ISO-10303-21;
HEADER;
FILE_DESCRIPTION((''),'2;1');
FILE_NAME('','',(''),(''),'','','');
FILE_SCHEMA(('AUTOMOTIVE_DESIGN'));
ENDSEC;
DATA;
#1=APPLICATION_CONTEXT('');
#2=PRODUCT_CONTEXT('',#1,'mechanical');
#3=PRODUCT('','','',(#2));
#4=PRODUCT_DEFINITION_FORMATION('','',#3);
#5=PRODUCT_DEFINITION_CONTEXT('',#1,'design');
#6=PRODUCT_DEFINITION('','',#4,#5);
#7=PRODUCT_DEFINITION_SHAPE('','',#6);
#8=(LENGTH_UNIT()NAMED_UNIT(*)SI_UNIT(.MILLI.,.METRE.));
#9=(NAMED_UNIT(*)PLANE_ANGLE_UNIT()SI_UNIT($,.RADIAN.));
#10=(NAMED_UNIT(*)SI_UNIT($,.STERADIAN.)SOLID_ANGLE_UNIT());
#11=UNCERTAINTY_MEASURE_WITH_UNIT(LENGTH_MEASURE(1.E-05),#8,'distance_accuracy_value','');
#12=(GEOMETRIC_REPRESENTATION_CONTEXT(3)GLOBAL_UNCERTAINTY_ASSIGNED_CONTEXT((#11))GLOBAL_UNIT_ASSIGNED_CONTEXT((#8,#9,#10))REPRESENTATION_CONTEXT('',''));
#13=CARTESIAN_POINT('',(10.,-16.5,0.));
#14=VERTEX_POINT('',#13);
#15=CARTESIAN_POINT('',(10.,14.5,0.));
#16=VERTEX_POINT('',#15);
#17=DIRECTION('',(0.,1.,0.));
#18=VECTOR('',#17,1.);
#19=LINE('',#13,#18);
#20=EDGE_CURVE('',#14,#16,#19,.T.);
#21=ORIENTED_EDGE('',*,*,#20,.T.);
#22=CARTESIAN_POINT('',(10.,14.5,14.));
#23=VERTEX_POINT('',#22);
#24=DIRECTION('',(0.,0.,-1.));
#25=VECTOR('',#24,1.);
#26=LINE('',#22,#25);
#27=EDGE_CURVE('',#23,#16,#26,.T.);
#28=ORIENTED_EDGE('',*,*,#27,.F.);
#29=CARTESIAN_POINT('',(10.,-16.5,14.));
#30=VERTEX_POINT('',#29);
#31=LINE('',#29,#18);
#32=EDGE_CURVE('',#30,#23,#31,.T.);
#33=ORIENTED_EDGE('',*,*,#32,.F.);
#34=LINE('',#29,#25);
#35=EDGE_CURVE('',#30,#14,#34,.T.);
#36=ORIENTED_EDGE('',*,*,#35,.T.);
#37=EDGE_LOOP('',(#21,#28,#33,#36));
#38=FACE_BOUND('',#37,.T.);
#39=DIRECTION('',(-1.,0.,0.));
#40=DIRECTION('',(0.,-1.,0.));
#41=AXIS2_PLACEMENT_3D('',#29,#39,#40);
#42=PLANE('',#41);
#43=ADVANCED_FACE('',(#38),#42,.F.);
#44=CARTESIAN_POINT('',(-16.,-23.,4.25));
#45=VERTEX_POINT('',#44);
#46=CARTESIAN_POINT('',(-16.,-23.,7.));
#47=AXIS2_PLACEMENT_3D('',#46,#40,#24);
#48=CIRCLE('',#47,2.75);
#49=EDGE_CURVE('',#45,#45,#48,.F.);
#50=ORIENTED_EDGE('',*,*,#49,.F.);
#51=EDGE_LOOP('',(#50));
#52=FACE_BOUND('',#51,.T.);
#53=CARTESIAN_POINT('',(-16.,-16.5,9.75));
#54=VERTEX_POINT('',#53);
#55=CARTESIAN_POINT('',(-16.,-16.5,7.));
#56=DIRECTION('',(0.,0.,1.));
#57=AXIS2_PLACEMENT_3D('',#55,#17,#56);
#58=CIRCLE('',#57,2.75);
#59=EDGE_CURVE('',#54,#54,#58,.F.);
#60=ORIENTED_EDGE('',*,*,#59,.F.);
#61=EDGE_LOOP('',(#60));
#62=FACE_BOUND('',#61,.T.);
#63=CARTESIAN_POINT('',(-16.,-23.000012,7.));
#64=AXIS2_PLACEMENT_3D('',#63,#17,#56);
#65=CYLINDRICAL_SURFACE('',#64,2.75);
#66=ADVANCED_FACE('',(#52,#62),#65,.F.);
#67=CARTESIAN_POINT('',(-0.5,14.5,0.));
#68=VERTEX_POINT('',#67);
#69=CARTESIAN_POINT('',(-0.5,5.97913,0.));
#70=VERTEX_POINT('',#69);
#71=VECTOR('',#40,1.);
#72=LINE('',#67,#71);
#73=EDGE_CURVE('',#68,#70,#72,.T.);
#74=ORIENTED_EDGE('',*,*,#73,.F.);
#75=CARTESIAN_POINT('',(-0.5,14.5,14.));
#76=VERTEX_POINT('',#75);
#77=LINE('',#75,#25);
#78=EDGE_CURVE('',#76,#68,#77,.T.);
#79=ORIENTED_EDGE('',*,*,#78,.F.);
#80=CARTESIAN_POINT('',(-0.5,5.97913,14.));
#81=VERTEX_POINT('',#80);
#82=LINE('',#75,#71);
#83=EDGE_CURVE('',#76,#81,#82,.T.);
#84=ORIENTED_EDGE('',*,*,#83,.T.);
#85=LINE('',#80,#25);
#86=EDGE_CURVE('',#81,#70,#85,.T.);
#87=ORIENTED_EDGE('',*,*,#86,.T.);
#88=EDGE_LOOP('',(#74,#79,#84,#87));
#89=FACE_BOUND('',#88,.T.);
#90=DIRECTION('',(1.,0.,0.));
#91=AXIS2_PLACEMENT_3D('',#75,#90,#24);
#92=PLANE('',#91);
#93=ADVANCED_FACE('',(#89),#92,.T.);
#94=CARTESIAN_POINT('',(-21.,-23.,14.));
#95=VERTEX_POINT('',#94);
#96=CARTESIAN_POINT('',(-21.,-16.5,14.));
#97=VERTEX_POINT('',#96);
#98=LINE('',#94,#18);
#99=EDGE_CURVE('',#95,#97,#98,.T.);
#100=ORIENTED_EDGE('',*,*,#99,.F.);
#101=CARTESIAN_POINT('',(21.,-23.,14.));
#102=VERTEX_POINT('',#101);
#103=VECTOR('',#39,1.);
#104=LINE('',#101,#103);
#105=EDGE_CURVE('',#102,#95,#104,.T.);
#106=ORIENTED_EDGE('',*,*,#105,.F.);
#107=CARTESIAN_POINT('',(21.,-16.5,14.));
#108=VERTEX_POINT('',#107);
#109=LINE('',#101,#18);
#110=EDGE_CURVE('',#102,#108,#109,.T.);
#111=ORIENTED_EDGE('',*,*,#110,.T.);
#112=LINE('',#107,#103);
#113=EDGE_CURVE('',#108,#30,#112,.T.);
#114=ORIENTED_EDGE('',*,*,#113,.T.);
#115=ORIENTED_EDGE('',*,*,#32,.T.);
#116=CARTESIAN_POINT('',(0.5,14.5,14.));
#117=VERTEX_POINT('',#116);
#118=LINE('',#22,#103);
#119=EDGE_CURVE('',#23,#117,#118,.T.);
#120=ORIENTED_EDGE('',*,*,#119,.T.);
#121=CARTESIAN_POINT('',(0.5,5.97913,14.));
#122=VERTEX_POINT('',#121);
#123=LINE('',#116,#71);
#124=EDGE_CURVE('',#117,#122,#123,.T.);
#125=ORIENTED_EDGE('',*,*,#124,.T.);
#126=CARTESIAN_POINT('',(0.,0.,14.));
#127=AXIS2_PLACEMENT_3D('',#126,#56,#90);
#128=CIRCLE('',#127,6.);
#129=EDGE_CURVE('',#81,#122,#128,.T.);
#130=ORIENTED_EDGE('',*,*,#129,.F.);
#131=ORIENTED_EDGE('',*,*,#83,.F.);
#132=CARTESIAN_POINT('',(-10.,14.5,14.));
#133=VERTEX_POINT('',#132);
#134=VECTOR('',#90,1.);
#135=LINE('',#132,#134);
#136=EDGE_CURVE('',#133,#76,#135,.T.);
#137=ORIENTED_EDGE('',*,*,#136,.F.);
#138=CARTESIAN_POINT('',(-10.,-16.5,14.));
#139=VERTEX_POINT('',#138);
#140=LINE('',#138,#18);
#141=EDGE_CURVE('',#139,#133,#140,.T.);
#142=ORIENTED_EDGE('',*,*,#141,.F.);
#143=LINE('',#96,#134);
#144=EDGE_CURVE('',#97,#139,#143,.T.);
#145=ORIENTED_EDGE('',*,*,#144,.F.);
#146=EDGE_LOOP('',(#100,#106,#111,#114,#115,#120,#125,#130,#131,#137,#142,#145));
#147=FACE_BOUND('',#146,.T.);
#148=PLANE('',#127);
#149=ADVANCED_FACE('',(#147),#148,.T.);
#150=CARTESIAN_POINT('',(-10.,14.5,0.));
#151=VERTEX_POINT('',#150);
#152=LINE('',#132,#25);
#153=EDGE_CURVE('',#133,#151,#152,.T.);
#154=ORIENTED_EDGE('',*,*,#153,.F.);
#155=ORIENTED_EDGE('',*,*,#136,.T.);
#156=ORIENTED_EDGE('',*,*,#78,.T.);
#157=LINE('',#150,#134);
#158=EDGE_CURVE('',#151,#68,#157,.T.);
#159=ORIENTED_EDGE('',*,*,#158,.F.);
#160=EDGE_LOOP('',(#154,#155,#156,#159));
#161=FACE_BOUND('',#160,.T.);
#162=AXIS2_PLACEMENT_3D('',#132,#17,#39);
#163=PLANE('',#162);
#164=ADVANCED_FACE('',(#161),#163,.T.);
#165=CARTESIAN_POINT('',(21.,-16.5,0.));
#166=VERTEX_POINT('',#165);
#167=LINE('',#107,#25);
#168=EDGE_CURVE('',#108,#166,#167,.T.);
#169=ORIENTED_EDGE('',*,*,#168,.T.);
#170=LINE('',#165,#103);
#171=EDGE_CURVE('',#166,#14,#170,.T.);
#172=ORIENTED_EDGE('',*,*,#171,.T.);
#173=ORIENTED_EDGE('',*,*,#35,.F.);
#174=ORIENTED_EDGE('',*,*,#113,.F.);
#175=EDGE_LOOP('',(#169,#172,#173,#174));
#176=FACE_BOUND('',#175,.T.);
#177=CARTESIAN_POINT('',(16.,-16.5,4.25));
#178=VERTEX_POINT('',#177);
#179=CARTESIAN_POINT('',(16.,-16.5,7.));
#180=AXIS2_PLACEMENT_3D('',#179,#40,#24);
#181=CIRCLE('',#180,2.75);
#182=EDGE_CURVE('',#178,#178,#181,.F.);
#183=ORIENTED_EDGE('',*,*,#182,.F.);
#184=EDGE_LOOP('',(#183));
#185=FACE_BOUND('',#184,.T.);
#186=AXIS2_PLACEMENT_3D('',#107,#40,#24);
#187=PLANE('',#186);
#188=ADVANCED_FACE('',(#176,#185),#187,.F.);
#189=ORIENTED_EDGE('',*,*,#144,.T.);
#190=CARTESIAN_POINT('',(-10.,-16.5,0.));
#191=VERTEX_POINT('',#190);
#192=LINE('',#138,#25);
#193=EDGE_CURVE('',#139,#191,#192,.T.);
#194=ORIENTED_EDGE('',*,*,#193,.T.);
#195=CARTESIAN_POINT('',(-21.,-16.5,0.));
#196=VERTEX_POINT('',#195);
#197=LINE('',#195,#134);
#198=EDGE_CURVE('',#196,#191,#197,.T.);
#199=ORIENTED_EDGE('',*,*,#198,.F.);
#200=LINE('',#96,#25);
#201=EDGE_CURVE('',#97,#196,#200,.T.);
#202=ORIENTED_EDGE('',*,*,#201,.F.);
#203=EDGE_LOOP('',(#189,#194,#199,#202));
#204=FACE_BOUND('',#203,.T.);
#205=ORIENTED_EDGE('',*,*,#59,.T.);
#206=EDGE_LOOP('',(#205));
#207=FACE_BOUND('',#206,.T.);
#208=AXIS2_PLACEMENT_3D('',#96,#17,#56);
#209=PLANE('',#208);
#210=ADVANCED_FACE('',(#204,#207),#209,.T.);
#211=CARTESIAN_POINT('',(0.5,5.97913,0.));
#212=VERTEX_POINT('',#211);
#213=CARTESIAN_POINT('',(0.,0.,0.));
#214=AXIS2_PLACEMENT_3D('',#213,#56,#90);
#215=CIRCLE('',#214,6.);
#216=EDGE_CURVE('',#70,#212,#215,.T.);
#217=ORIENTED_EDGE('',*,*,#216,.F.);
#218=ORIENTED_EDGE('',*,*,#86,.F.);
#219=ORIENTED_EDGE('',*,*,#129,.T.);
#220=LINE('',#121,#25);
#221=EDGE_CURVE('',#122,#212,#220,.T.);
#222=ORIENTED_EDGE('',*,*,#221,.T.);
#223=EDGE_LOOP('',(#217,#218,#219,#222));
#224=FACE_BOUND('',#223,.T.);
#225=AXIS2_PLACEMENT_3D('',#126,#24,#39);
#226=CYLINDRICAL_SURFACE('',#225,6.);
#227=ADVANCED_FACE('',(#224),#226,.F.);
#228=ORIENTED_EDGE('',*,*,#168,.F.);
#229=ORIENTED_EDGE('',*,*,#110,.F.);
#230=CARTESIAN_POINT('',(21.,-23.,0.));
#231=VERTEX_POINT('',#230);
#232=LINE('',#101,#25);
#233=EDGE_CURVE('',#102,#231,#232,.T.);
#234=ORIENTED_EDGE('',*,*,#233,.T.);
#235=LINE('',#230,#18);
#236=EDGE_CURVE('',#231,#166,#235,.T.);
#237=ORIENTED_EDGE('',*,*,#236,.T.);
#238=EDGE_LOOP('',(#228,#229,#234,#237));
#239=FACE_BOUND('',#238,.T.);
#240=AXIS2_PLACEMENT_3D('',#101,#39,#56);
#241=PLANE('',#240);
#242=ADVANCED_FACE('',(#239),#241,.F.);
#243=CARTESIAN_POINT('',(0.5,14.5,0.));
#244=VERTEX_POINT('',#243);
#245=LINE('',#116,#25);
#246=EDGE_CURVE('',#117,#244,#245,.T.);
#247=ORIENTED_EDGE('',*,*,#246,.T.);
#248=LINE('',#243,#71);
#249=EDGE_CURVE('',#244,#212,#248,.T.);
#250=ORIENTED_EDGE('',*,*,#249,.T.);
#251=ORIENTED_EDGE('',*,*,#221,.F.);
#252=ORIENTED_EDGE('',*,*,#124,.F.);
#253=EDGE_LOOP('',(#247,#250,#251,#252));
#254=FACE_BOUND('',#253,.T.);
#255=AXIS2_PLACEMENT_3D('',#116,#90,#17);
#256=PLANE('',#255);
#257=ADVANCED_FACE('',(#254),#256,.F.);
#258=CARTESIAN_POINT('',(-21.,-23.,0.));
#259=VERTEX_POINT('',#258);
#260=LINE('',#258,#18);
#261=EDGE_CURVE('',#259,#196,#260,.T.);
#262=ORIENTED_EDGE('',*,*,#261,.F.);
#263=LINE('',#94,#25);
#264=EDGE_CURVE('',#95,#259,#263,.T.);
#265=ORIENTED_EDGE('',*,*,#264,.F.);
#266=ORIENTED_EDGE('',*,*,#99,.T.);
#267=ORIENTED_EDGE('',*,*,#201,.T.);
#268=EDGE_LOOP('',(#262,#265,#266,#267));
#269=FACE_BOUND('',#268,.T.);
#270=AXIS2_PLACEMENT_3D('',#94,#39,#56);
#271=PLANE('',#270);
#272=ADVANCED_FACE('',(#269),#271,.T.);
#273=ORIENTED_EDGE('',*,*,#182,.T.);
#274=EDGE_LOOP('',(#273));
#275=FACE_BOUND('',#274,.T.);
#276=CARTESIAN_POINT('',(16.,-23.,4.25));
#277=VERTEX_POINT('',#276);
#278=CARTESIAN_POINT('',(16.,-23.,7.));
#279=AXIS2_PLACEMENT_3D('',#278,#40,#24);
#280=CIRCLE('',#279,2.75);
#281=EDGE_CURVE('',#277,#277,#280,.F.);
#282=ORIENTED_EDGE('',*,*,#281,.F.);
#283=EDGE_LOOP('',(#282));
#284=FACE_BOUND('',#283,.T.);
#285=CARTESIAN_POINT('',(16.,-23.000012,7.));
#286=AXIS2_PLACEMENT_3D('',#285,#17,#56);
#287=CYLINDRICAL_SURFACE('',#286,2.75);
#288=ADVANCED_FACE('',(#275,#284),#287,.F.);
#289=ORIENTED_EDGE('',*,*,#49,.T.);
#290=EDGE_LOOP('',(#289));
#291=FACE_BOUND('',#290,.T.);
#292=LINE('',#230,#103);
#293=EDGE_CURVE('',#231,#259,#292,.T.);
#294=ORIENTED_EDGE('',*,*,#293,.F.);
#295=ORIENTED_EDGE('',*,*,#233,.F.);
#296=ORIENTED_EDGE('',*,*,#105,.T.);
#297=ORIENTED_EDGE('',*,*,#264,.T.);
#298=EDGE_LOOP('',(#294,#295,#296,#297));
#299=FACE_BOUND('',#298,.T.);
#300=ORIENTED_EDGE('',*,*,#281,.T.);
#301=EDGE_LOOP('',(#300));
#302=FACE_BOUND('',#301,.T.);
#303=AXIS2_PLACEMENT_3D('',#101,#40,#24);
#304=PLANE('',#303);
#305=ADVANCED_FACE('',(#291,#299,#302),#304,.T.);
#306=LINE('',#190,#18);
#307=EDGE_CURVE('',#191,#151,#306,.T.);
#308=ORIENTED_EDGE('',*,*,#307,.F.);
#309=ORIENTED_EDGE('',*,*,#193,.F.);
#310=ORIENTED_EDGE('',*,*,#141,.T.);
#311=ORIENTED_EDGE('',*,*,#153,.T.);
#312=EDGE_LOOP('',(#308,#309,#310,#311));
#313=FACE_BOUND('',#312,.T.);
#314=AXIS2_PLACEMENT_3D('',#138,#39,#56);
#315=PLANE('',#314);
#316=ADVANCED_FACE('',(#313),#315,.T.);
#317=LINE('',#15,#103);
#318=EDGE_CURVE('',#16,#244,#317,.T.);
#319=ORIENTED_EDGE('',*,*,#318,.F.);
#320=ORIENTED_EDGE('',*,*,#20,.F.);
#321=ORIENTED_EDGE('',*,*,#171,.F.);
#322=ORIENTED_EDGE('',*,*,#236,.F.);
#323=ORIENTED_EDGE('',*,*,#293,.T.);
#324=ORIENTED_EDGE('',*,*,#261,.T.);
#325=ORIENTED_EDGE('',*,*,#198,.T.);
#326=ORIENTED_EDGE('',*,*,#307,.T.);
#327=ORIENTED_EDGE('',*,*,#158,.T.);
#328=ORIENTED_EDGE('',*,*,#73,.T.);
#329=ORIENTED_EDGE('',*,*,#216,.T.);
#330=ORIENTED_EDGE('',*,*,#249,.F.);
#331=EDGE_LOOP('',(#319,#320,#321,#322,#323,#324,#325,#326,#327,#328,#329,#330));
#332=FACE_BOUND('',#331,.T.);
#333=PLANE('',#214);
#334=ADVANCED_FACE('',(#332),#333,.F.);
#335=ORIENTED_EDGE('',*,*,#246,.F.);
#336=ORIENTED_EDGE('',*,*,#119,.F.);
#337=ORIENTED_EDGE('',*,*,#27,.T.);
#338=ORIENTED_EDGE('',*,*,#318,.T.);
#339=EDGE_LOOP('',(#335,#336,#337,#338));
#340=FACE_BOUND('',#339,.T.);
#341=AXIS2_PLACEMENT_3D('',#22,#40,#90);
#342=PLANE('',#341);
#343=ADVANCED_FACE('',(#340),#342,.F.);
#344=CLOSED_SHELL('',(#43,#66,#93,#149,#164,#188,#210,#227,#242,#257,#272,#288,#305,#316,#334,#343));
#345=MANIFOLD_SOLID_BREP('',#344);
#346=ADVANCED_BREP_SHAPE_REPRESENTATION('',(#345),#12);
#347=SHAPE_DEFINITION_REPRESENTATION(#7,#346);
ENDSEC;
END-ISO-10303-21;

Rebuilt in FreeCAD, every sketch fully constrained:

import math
import FreeCAD as App
import Part
import Sketcher

V = App.Vector

doc = App.newDocument("Part")
body = doc.addObject("PartDesign::Body", "Body")

sketch1 = doc.addObject("Sketcher::SketchObject", "Sketch")
body.addObject(sketch1)
sketch1.AttachmentSupport = (doc.XY_Plane, [""])
sketch1.MapMode = "FlatFace"
sketch1.addGeometry([
    Part.LineSegment(V(-21, -23, 0), V(21, -23, 0)),
    Part.LineSegment(V(21, -23, 0), V(21, -16.5, 0)),
    Part.LineSegment(V(21, -16.5, 0), V(10, -16.5, 0)),
    Part.LineSegment(V(10, -16.5, 0), V(10, 14.5, 0)),
    Part.LineSegment(V(10, 14.5, 0), V(0.5, 14.5, 0)),
    Part.LineSegment(V(0.5, 14.5, 0), V(0.5, 6, 0)),
    Part.ArcOfCircle(Part.Circle(V(0, 0, 0), V(0, 0, 1), 6), math.radians(95), math.radians(445)),
    Part.LineSegment(V(-0.5, 6, 0), V(-0.5, 14.5, 0)),
    Part.LineSegment(V(-0.5, 14.5, 0), V(-10, 14.5, 0)),
    Part.LineSegment(V(-10, 14.5, 0), V(-10, -16.5, 0)),
    Part.LineSegment(V(-10, -16.5, 0), V(-21, -16.5, 0)),
    Part.LineSegment(V(-21, -16.5, 0), V(-21, -23, 0)),
], False)
sketch1.addConstraint([
    Sketcher.Constraint("Coincident", 0, 2, 1, 1),
    Sketcher.Constraint("Coincident", 1, 2, 2, 1),
    Sketcher.Constraint("Coincident", 2, 2, 3, 1),
    Sketcher.Constraint("Coincident", 3, 2, 4, 1),
    Sketcher.Constraint("Coincident", 4, 2, 5, 1),
    Sketcher.Constraint("Coincident", 5, 2, 6, 2),
    Sketcher.Constraint("Coincident", 6, 1, 7, 1),
    Sketcher.Constraint("Coincident", 7, 2, 8, 1),
    Sketcher.Constraint("Coincident", 8, 2, 9, 1),
    Sketcher.Constraint("Coincident", 9, 2, 10, 1),
    Sketcher.Constraint("Coincident", 10, 2, 11, 1),
    Sketcher.Constraint("Coincident", 11, 2, 0, 1),
    Sketcher.Constraint("Horizontal", 0),
    Sketcher.Constraint("Vertical", 1),
    Sketcher.Constraint("Horizontal", 2),
    Sketcher.Constraint("Vertical", 3),
    Sketcher.Constraint("Horizontal", 4),
    Sketcher.Constraint("Vertical", 5),
    Sketcher.Constraint("Vertical", 7),
    Sketcher.Constraint("Horizontal", 8),
    Sketcher.Constraint("Vertical", 9),
    Sketcher.Constraint("Horizontal", 10),
    Sketcher.Constraint("Vertical", 11),
    Sketcher.Constraint("Coincident", 6, 3, -1, 1),
    Sketcher.Constraint("Symmetric", 4, 2, 7, 2, -2),
    Sketcher.Constraint("Symmetric", 2, 2, 9, 2, -2),
    Sketcher.Constraint("Equal", 2, 10),
    Sketcher.Constraint("Radius", 6, 6.0),
    Sketcher.Constraint("DistanceX", 0, 1, 0, 2, 42.0),
    Sketcher.Constraint("DistanceX", 2, 2, 2, 1, 11.0),
    Sketcher.Constraint("DistanceY", 3, 1, 3, 2, 31.0),
    Sketcher.Constraint("DistanceX", 4, 2, 4, 1, 9.5),
    Sketcher.Constraint("DistanceY", 1, 1, 1, 2, 6.5),
    Sketcher.Constraint("DistanceY", 0, 2, -1, 1, 23.0),
])
pad1 = doc.addObject("PartDesign::Pad", "Pad")
body.addObject(pad1)
pad1.Profile = sketch1
pad1.Length = 14

sketch2 = doc.addObject("Sketcher::SketchObject", "Sketch001")
body.addObject(sketch2)
sketch2.AttachmentSupport = (doc.XZ_Plane, [""])
sketch2.MapMode = "FlatFace"
sketch2.AttachmentOffset = App.Placement(V(0, 0, 23), App.Rotation())
sketch2.addGeometry(Part.Circle(V(-16, 7, 0), V(0, 0, 1), 2.8), False)
sketch2.addConstraint([
    Sketcher.Constraint("Diameter", 0, 5.5),
    Sketcher.Constraint("DistanceX", 0, 3, -1, 1, 16.0),
    Sketcher.Constraint("DistanceY", -1, 1, 0, 3, 7.0),
])
pocket1 = doc.addObject("PartDesign::Pocket", "Pocket")
body.addObject(pocket1)
pocket1.Profile = sketch2
pocket1.Type = "UpToFirst"

sketch3 = doc.addObject("Sketcher::SketchObject", "Sketch002")
body.addObject(sketch3)
sketch3.AttachmentSupport = (doc.XZ_Plane, [""])
sketch3.MapMode = "FlatFace"
sketch3.AttachmentOffset = App.Placement(V(0, 0, 23), App.Rotation())
sketch3.addGeometry(Part.Circle(V(16, 7, 0), V(0, 0, 1), 2.8), False)
sketch3.addConstraint([
    Sketcher.Constraint("Diameter", 0, 5.5),
    Sketcher.Constraint("DistanceX", -1, 1, 0, 3, 16.0),
    Sketcher.Constraint("DistanceY", -1, 1, 0, 3, 7.0),
])
pocket2 = doc.addObject("PartDesign::Pocket", "Pocket001")
body.addObject(pocket2)
pocket2.Profile = sketch3
pocket2.Type = "UpToFirst"

sketch4 = doc.addObject("Sketcher::SketchObject", "Sketch003")
body.addObject(sketch4)
sketch4.AttachmentSupport = (doc.XZ_Plane, [""])
sketch4.MapMode = "FlatFace"
sketch4.AttachmentOffset = App.Placement(V(0, 0, 23), App.Rotation())
sketch4.addGeometry([
    Part.Circle(V(-16, 7, 0), V(0, 0, 1), 2.8),
    Part.Circle(V(16, 7, 0), V(0, 0, 1), 2.8),
], False)
sketch4.addConstraint([
    Sketcher.Constraint("Equal", 0, 1),
    Sketcher.Constraint("Symmetric", 0, 3, 1, 3, -2),
    Sketcher.Constraint("Diameter", 0, 5.5),
    Sketcher.Constraint("DistanceX", 0, 3, -1, 1, 16.0),
    Sketcher.Constraint("DistanceY", -1, 1, 0, 3, 7.0),
])
pocket3 = doc.addObject("PartDesign::Pocket", "Pocket002")
body.addObject(pocket3)
pocket3.Profile = sketch4
pocket3.Length = 1
pocket3.Reversed = True

doc.recompute()
